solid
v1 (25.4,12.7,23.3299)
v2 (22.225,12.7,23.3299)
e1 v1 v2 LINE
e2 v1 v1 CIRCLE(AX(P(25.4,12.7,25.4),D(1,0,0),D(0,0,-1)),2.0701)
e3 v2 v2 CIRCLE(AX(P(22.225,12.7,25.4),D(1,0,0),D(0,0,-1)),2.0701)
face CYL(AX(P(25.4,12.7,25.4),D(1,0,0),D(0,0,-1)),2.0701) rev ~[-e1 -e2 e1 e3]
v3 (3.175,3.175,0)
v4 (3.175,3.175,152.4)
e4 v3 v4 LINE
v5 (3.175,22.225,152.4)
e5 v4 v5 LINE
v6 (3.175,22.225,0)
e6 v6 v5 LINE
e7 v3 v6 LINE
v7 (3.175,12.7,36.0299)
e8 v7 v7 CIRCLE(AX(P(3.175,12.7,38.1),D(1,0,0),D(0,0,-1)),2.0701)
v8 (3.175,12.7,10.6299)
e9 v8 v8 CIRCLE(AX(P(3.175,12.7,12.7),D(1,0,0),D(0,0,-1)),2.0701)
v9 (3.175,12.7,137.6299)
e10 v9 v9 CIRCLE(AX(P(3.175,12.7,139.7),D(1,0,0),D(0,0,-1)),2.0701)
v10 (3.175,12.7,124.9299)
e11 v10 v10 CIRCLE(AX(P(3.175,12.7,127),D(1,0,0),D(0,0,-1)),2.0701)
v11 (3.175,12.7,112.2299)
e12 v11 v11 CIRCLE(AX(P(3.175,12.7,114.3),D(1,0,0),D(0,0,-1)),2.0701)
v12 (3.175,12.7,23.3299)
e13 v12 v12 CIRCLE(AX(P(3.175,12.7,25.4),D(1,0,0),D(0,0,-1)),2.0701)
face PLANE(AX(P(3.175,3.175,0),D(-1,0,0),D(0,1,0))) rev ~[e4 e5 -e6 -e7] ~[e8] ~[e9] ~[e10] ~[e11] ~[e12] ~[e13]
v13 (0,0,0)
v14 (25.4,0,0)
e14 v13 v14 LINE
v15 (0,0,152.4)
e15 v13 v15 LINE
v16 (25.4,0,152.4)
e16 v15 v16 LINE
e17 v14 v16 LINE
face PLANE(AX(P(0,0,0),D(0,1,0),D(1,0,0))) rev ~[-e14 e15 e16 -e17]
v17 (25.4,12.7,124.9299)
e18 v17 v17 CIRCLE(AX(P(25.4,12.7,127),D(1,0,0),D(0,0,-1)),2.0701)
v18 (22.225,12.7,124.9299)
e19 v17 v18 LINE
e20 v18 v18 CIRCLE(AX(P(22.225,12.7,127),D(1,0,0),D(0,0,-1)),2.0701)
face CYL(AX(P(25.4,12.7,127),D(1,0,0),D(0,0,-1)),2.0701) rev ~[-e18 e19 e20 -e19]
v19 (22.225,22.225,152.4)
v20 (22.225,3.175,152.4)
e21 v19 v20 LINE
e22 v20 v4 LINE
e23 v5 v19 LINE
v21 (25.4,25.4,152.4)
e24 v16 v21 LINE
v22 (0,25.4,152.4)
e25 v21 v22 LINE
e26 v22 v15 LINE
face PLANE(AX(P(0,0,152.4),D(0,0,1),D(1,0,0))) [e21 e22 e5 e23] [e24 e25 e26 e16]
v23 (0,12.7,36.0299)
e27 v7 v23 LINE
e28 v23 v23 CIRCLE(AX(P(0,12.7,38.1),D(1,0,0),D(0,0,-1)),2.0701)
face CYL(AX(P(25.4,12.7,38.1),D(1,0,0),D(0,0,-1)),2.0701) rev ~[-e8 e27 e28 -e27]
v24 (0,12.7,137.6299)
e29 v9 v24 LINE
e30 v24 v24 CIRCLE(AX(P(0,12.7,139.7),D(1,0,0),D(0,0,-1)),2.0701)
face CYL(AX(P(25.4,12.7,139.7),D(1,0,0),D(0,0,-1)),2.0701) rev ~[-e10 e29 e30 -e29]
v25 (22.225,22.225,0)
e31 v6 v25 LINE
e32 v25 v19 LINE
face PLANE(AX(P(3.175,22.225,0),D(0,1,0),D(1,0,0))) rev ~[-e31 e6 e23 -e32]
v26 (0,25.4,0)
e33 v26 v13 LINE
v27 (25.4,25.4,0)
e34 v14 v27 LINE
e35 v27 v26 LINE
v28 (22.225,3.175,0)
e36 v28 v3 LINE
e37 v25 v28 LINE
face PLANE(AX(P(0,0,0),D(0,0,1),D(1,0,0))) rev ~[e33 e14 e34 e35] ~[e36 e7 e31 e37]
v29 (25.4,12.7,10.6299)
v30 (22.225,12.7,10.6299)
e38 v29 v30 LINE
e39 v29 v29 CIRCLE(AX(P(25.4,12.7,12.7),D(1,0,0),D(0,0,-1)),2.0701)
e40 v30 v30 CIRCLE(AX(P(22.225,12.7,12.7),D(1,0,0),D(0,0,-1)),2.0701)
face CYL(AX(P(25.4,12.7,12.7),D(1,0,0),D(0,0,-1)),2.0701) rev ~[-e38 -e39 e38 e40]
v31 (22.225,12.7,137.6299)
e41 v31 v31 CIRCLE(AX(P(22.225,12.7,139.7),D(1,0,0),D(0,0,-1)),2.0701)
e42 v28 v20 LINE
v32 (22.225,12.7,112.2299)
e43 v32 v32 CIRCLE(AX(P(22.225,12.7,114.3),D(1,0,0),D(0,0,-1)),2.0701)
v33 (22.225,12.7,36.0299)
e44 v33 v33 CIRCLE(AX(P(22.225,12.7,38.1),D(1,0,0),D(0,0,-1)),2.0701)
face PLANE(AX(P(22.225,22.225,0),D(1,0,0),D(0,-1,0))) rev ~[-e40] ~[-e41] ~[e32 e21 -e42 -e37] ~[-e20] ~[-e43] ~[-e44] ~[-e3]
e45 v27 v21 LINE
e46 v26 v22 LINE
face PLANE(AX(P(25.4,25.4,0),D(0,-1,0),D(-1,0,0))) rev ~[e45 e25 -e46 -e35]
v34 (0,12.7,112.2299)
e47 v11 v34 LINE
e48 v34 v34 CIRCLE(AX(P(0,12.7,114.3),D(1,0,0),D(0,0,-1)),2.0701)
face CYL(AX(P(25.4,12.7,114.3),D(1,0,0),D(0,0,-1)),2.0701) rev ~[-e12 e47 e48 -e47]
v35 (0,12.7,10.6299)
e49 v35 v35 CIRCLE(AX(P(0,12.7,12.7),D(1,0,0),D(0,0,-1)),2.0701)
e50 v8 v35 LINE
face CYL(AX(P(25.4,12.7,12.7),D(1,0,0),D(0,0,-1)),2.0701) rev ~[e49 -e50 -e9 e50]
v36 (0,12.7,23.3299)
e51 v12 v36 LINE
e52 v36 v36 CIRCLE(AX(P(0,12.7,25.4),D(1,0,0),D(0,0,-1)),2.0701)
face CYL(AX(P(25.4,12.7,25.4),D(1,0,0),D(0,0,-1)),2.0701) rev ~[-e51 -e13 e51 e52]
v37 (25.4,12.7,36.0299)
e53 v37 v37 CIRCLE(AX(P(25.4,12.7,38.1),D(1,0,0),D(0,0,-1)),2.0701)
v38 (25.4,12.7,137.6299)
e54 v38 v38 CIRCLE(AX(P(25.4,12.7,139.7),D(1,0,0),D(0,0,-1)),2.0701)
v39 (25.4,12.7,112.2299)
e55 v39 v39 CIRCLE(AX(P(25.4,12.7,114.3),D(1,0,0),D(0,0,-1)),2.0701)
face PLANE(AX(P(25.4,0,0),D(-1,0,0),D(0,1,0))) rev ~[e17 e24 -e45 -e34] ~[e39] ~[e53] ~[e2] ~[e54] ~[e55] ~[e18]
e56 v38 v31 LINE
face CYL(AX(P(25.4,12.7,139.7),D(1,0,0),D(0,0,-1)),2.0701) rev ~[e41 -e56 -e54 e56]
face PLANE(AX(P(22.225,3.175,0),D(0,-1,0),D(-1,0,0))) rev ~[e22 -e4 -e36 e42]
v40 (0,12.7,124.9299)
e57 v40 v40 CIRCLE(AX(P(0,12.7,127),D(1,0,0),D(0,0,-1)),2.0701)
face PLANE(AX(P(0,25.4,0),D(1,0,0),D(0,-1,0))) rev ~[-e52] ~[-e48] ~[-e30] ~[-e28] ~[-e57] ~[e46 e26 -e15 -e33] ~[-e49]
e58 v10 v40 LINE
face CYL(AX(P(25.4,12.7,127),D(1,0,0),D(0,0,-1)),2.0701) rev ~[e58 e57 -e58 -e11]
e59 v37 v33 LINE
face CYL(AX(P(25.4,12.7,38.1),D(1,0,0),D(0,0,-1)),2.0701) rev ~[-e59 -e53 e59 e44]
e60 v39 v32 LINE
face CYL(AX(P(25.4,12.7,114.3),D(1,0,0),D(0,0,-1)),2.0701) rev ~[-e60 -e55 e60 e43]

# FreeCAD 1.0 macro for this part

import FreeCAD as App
import Part
import Sketcher
Q = App.Units.Quantity


def add_polygon(sketch, points):
    """Adds a closed chain of lines whose ends are joined by coincident constraints."""
    first, n = sketch.GeometryCount, len(points)
    for a, b in zip(points, points[1:] + points[:1]):
        sketch.addGeometry(Part.LineSegment(App.Vector(*a, 0), App.Vector(*b, 0)), False)
    for i in range(n):
        sketch.addConstraint(Sketcher.Constraint("Coincident", first + i, 2, first + (i + 1) % n, 1))

doc = App.newDocument("Part")
body = doc.addObject("PartDesign::Body", "Body")

# Sketch on XY plane
sketch1 = body.newObject("Sketcher::SketchObject", "Sketch")
sketch1.AttachmentSupport = (doc.getObject("XY_Plane"), [""])
sketch1.MapMode = "FlatFace"
add_polygon(sketch1, [(0, 25.4), (0, 0), (25.4, 0), (25.4, 25.4)])  # lines 0-3
add_polygon(sketch1, [(3.175, 3.175), (3.175, 22.225), (22.225, 22.225), (22.225, 3.175)])  # lines 4-7
sketch1.addConstraint([
    Sketcher.Constraint("Vertical", 0),
    Sketcher.Constraint("Horizontal", 1),
    Sketcher.Constraint("Vertical", 2),
    Sketcher.Constraint("Horizontal", 3),
    Sketcher.Constraint("Vertical", 4),
    Sketcher.Constraint("Horizontal", 5),
    Sketcher.Constraint("Vertical", 6),
    Sketcher.Constraint("Horizontal", 7),
    Sketcher.Constraint("Coincident", 0, 2, -1, 1),
    Sketcher.Constraint("Equal", 3, 0),
    Sketcher.Constraint("Equal", 7, 4),
    Sketcher.Constraint("DistanceX", 1, 1, 1, 2, Q("1 in")),
    Sketcher.Constraint("DistanceX", -1, 1, 4, 2, Q("0.125 in")),
    Sketcher.Constraint("DistanceY", -1, 1, 6, 2, Q("0.125 in")),
    Sketcher.Constraint("DistanceY", 4, 2, 3, 2, Q("0.125 in")),
])
pad1 = body.newObject("PartDesign::Pad", "Pad")
pad1.Profile = sketch1
pad1.Length = Q("6 in")

# Sketch on YZ plane
sketch2 = body.newObject("Sketcher::SketchObject", "Sketch001")
sketch2.AttachmentSupport = (doc.getObject("YZ_Plane"), [""])
sketch2.MapMode = "FlatFace"
sketch2.AttachmentOffset = App.Placement(App.Vector(0, 0, 1 * 25.4), App.Rotation())
sketch2.addGeometry([
    Part.Circle(App.Vector(12.7, 139.7, 0), App.Vector(0, 0, 1), 2.0701),  # 0
    Part.Circle(App.Vector(12.7, 127, 0), App.Vector(0, 0, 1), 2.0701),  # 1
    Part.Circle(App.Vector(12.7, 114.3, 0), App.Vector(0, 0, 1), 2.0701),  # 2
    Part.Circle(App.Vector(12.7, 12.7, 0), App.Vector(0, 0, 1), 2.0701),  # 3
    Part.Circle(App.Vector(12.7, 25.4, 0), App.Vector(0, 0, 1), 2.0701),  # 4
    Part.Circle(App.Vector(12.7, 38.1, 0), App.Vector(0, 0, 1), 2.0701),  # 5
], False)
sketch2.addConstraint([
    Sketcher.Constraint("Equal", 0, 1),
    Sketcher.Constraint("Equal", 1, 2),
    Sketcher.Constraint("Equal", 2, 3),
    Sketcher.Constraint("Equal", 3, 4),
    Sketcher.Constraint("Equal", 4, 5),
    Sketcher.Constraint("Vertical", 0, 3, 1, 3),
    Sketcher.Constraint("Vertical", 1, 3, 2, 3),
    Sketcher.Constraint("Vertical", 2, 3, 3, 3),
    Sketcher.Constraint("Vertical", 3, 3, 4, 3),
    Sketcher.Constraint("Vertical", 4, 3, 5, 3),
    Sketcher.Constraint("Diameter", 0, Q("0.163 in")),
    Sketcher.Constraint("DistanceY", -1, 1, 4, 3, Q("1 in")),
    Sketcher.Constraint("DistanceY", 2, 3, 0, 3, Q("1 in")),
    Sketcher.Constraint("DistanceY", 3, 3, 5, 3, Q("1 in")),
    Sketcher.Constraint("DistanceX", -1, 1, 0, 3, Q("0.5 in")),
    Sketcher.Constraint("DistanceY", -1, 1, 3, 3, Q("0.5 in")),
    Sketcher.Constraint("DistanceY", 1, 3, 0, 3, Q("0.5 in")),
    Sketcher.Constraint("DistanceY", -1, 1, 1, 3, Q("5 in")),
])
pocket1 = body.newObject("PartDesign::Pocket", "Pocket")
pocket1.Profile = sketch2
pocket1.Length = Q("6 in")

doc.recompute()
